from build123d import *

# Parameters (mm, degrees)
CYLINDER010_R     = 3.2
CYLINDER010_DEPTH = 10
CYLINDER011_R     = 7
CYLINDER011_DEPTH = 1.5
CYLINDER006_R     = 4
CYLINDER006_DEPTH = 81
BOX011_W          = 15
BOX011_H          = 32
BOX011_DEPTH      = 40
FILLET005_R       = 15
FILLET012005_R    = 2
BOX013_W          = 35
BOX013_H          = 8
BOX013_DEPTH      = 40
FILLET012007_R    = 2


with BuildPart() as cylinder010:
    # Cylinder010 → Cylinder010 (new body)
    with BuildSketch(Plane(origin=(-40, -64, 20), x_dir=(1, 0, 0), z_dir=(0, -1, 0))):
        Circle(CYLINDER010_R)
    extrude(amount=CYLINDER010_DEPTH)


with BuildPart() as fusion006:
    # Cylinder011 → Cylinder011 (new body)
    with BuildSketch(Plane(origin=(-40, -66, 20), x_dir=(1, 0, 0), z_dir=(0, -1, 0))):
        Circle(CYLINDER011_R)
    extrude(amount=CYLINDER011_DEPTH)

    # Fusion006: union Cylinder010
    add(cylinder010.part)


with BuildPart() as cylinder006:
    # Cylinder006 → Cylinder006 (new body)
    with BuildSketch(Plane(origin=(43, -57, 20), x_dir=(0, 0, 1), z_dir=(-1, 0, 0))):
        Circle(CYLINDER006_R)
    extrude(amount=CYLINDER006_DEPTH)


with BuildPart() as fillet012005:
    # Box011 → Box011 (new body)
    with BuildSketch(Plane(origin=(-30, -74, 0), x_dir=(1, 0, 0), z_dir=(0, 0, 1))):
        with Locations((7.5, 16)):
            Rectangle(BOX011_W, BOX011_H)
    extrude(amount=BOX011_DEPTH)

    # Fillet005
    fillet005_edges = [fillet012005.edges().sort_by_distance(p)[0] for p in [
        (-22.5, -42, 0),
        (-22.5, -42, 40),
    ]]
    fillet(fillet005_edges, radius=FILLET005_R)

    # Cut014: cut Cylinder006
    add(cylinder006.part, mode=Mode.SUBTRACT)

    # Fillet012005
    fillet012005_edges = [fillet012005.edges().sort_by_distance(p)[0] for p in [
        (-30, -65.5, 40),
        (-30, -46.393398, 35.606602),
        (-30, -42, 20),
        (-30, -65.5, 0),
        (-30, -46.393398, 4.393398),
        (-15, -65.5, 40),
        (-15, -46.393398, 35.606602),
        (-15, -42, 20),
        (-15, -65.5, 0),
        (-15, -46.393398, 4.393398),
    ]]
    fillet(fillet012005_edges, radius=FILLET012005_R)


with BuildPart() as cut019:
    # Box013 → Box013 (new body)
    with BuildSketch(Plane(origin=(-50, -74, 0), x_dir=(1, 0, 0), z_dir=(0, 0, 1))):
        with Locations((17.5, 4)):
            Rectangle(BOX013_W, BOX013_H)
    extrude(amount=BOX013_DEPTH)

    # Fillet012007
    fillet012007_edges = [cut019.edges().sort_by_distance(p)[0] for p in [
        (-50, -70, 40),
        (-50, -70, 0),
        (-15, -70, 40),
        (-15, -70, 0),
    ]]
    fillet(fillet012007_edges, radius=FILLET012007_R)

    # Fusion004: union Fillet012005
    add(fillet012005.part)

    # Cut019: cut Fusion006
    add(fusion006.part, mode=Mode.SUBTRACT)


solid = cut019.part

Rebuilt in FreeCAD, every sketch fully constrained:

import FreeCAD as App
import Part
import Sketcher

V = App.Vector
Q = App.Units.Quantity


def edges_at(feature, points):
    """Names of the edges that pass closest to the given points."""
    edges = feature.Shape.Edges
    near = lambda p: min(range(len(edges)), key=lambda i: edges[i].distToShape(Part.Vertex(*p))[0])
    return sorted({f"Edge{near(p) + 1}" for p in points})


def add_polygon(sketch, points):
    """Adds a closed chain of lines whose ends are joined by coincident constraints."""
    first, n = sketch.GeometryCount, len(points)
    for a, b in zip(points, points[1:] + points[:1]):
        sketch.addGeometry(Part.LineSegment(App.Vector(*a, 0), App.Vector(*b, 0)), False)
    for i in range(n):
        sketch.addConstraint(Sketcher.Constraint("Coincident", first + i, 2, first + (i + 1) % n, 1))

doc = App.newDocument("Part")
params = doc.addObject("Spreadsheet::Sheet", "Params")
for row, (alias, value) in enumerate([
    ("sketch1_diameter", "6.4 mm"),
    ("pad1_length", "10 mm"),
    ("sketch2_diameter", "14 mm"),
    ("pad2_length", "1.5 mm"),
    ("sketch3_diameter", "8 mm"),
    ("pad3_length", "81 mm"),
    ("sketch4_width", "15 mm"),
    ("sketch4_height", "32 mm"),
    ("pad4_length", "40 mm"),
    ("fillet_radius", "15 mm"),
    ("fillet2_radius", "2 mm"),
    ("sketch5_width", "35 mm"),
    ("sketch5_height", "8 mm"),
    ("pad5_length", "40 mm"),
    ("fillet3_radius", "2 mm"),
], start=1):
    params.set(f"A{row}", alias)
    params.set(f"B{row}", "=" + value)
    params.setAlias(f"B{row}", alias)

body = doc.addObject("PartDesign::Body", "Body")

# Sketch on XZ plane
sketch1 = doc.addObject("Sketcher::SketchObject", "Sketch")
body.addObject(sketch1)
sketch1.AttachmentSupport = (doc.XZ_Plane, [""])
sketch1.MapMode = "FlatFace"
sketch1.AttachmentOffset = App.Placement(V(0, 0, 64), App.Rotation())
sketch1.addGeometry(Part.Circle(V(-40, 20, 0), V(0, 0, 1), 3.2), False)
sketch1.addConstraint([
    Sketcher.Constraint("Diameter", 0, Q("6.4 mm")),
    Sketcher.Constraint("DistanceX", 0, 3, -1, 1, Q("40 mm")),
    Sketcher.Constraint("DistanceY", -1, 1, 0, 3, Q("20 mm")),
])
sketch1.setExpression("Constraints[0]", "Params.sketch1_diameter")
pad1 = doc.addObject("PartDesign::Pad", "Pad")
body.addObject(pad1)
pad1.Profile = sketch1
pad1.setExpression("Length", "Params.pad1_length")
body2 = doc.addObject("PartDesign::Body", "Body001")

# Sketch on XZ plane
sketch2 = doc.addObject("Sketcher::SketchObject", "Sketch001")
body2.addObject(sketch2)
sketch2.AttachmentSupport = (doc.getObject("XZ_Plane001"), [""])
sketch2.MapMode = "FlatFace"
sketch2.AttachmentOffset = App.Placement(V(0, 0, 66), App.Rotation())
sketch2.addGeometry(Part.Circle(V(-40, 20, 0), V(0, 0, 1), 7), False)
sketch2.addConstraint([
    Sketcher.Constraint("Diameter", 0, Q("14 mm")),
    Sketcher.Constraint("DistanceX", 0, 3, -1, 1, Q("40 mm")),
    Sketcher.Constraint("DistanceY", -1, 1, 0, 3, Q("20 mm")),
])
sketch2.setExpression("Constraints[0]", "Params.sketch2_diameter")
pad2 = doc.addObject("PartDesign::Pad", "Pad001")
body2.addObject(pad2)
pad2.Profile = sketch2
pad2.setExpression("Length", "Params.pad2_length")
doc.recompute()

boolean = doc.addObject("PartDesign::Boolean", "Boolean")
body2.addObject(boolean)
boolean.Type = "Fuse"
boolean.addObjects([body])
body3 = doc.addObject("PartDesign::Body", "Body002")

# Sketch on YZ plane
sketch3 = doc.addObject("Sketcher::SketchObject", "Sketch002")
body3.addObject(sketch3)
sketch3.AttachmentSupport = (doc.getObject("YZ_Plane002"), [""])
sketch3.MapMode = "FlatFace"
sketch3.AttachmentOffset = App.Placement(V(0, 0, 43), App.Rotation())
sketch3.addGeometry(Part.Circle(V(-57, 20, 0), V(0, 0, 1), 4), False)
sketch3.addConstraint([
    Sketcher.Constraint("Diameter", 0, Q("8 mm")),
    Sketcher.Constraint("DistanceX", 0, 3, -1, 1, Q("57 mm")),
    Sketcher.Constraint("DistanceY", -1, 1, 0, 3, Q("20 mm")),
])
sketch3.setExpression("Constraints[0]", "Params.sketch3_diameter")
pad3 = doc.addObject("PartDesign::Pad", "Pad002")
body3.addObject(pad3)
pad3.Profile = sketch3
pad3.setExpression("Length", "Params.pad3_length")
pad3.Reversed = True
body4 = doc.addObject("PartDesign::Body", "Body003")

# Sketch on XY plane
sketch4 = doc.addObject("Sketcher::SketchObject", "Sketch003")
body4.addObject(sketch4)
sketch4.AttachmentSupport = (doc.getObject("XY_Plane003"), [""])
sketch4.MapMode = "FlatFace"
add_polygon(sketch4, [(-30, -42), (-30, -74), (-15, -74), (-15, -42)])  # lines 0-3
sketch4.addConstraint([
    Sketcher.Constraint("Vertical", 0),
    Sketcher.Constraint("Horizontal", 1),
    Sketcher.Constraint("Vertical", 2),
    Sketcher.Constraint("Horizontal", 3),
    Sketcher.Constraint("DistanceX", 1, 1, 1, 2, Q("15 mm")),
    Sketcher.Constraint("DistanceY", 0, 2, 0, 1, Q("32 mm")),
    Sketcher.Constraint("DistanceX", 0, 2, -1, 1, Q("30 mm")),
    Sketcher.Constraint("DistanceY", 0, 2, -1, 1, Q("74 mm")),
])
sketch4.setExpression("Constraints[8]", "Params.sketch4_width")
sketch4.setExpression("Constraints[9]", "Params.sketch4_height")
pad4 = doc.addObject("PartDesign::Pad", "Pad003")
body4.addObject(pad4)
pad4.Profile = sketch4
pad4.setExpression("Length", "Params.pad4_length")
doc.recompute()

fillet = doc.addObject("PartDesign::Fillet", "Fillet")
body4.addObject(fillet)
fillet.Base = (pad4, edges_at(pad4, [(-22.5, -42, 0), (-22.5, -42, 40)]))
fillet.setExpression("Radius", "Params.fillet_radius")
doc.recompute()

boolean2 = doc.addObject("PartDesign::Boolean", "Boolean001")
body4.addObject(boolean2)
boolean2.Type = "Cut"
boolean2.addObjects([body3])
doc.recompute()

fillet2 = doc.addObject("PartDesign::Fillet", "Fillet001")
body4.addObject(fillet2)
fillet2.Base = (boolean2, edges_at(boolean2, [
    (-30, -65.5, 40),
    (-30, -46.393, 35.607),
    (-30, -42, 20),
    (-30, -65.5, 0),
    (-30, -46.393, 4.393),
    (-15, -65.5, 40),
    (-15, -46.393, 35.607),
    (-15, -42, 20),
    (-15, -65.5, 0),
    (-15, -46.393, 4.393),
]))
fillet2.setExpression("Radius", "Params.fillet2_radius")
body5 = doc.addObject("PartDesign::Body", "Body004")

# Sketch on XY plane
sketch5 = doc.addObject("Sketcher::SketchObject", "Sketch004")
body5.addObject(sketch5)
sketch5.AttachmentSupport = (doc.getObject("XY_Plane004"), [""])
sketch5.MapMode = "FlatFace"
add_polygon(sketch5, [(-50, -66), (-50, -74), (-15, -74), (-15, -66)])  # lines 0-3
sketch5.addConstraint([
    Sketcher.Constraint("Vertical", 0),
    Sketcher.Constraint("Horizontal", 1),
    Sketcher.Constraint("Vertical", 2),
    Sketcher.Constraint("Horizontal", 3),
    Sketcher.Constraint("DistanceX", 1, 1, 1, 2, Q("35 mm")),
    Sketcher.Constraint("DistanceY", 0, 2, 0, 1, Q("8 mm")),
    Sketcher.Constraint("DistanceX", 0, 2, -1, 1, Q("50 mm")),
    Sketcher.Constraint("DistanceY", 0, 2, -1, 1, Q("74 mm")),
])
sketch5.setExpression("Constraints[8]", "Params.sketch5_width")
sketch5.setExpression("Constraints[9]", "Params.sketch5_height")
pad5 = doc.addObject("PartDesign::Pad", "Pad004")
body5.addObject(pad5)
pad5.Profile = sketch5
pad5.setExpression("Length", "Params.pad5_length")
doc.recompute()

fillet3 = doc.addObject("PartDesign::Fillet", "Fillet002")
body5.addObject(fillet3)
fillet3.Base = (pad5, edges_at(pad5, [
    (-50, -70, 40),
    (-50, -70, 0),
    (-15, -70, 40),
    (-15, -70, 0),
]))
fillet3.setExpression("Radius", "Params.fillet3_radius")
doc.recompute()

boolean3 = doc.addObject("PartDesign::Boolean", "Boolean002")
body5.addObject(boolean3)
boolean3.Type = "Fuse"
boolean3.addObjects([body4])
doc.recompute()

boolean4 = doc.addObject("PartDesign::Boolean", "Boolean003")
body5.addObject(boolean4)
boolean4.Type = "Cut"
boolean4.addObjects([body2])

doc.recompute()
